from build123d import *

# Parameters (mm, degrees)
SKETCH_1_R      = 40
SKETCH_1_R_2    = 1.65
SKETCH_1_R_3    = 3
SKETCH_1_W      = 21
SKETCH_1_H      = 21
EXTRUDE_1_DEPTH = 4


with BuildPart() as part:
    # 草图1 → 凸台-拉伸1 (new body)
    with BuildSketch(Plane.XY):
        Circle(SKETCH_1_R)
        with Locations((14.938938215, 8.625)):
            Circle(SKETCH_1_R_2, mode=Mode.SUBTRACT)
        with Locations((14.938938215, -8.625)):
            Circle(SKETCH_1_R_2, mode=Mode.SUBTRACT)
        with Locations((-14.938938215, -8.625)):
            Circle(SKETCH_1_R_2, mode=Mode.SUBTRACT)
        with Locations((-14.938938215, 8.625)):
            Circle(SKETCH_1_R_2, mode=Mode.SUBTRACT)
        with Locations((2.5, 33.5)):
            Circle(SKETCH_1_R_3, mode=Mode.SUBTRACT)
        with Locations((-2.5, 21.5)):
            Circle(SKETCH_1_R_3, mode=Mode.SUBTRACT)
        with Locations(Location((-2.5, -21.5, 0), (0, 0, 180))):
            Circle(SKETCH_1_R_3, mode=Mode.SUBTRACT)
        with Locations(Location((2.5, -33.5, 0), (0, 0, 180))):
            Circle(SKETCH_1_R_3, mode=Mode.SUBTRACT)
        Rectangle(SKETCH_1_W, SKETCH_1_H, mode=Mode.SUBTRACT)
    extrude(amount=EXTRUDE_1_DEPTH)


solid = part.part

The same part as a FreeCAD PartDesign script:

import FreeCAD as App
import Part
import Sketcher
from FreeCAD import Vector

doc = App.newDocument("Part")
body = doc.addObject("PartDesign::Body", "Body")

sketch1 = body.newObject("Sketcher::SketchObject", "Sketch")
sketch1.AttachmentSupport = (doc.getObject("XY_Plane"), [""])
sketch1.MapMode = "FlatFace"
sketch1.addGeometry([
    Part.Circle(Vector(0, 0, 0), Vector(0, 0, 1), 40),
    Part.Circle(Vector(-2.5, -21.5, 0), Vector(0, 0, 1), 3),
    Part.Circle(Vector(-14.9, -8.6, 0), Vector(0, 0, 1), 1.6),
    Part.Circle(Vector(2.5, -33.5, 0), Vector(0, 0, 1), 3),
    Part.Circle(Vector(14.9, -8.6, 0), Vector(0, 0, 1), 1.6),
    Part.Circle(Vector(-14.9, 8.6, 0), Vector(0, 0, 1), 1.6),
    Part.Circle(Vector(-2.5, 21.5, 0), Vector(0, 0, 1), 3),
    Part.LineSegment(Vector(10.5, -10.5, 0), Vector(-10.5, -10.5, 0)),
    Part.LineSegment(Vector(-10.5, -10.5, 0), Vector(-10.5, 10.5, 0)),
    Part.LineSegment(Vector(-10.5, 10.5, 0), Vector(10.5, 10.5, 0)),
    Part.LineSegment(Vector(10.5, 10.5, 0), Vector(10.5, -10.5, 0)),
    Part.Circle(Vector(14.9, 8.6, 0), Vector(0, 0, 1), 1.6),
    Part.Circle(Vector(2.5, 33.5, 0), Vector(0, 0, 1), 3),
], False)
sketch1.addConstraint([
    Sketcher.Constraint("Coincident", 7, 2, 8, 1),
    Sketcher.Constraint("Coincident", 8, 2, 9, 1),
    Sketcher.Constraint("Coincident", 9, 2, 10, 1),
    Sketcher.Constraint("Coincident", 10, 2, 7, 1),
    Sketcher.Constraint("Horizontal", 7),
    Sketcher.Constraint("Vertical", 8),
    Sketcher.Constraint("Horizontal", 9),
    Sketcher.Constraint("Vertical", 10),
    Sketcher.Constraint("Coincident", 0, 3, -1, 1),
    Sketcher.Constraint("Equal", 1, 3),
    Sketcher.Constraint("Equal", 2, 4),
    Sketcher.Constraint("Equal", 4, 5),
    Sketcher.Constraint("Equal", 3, 6),
    Sketcher.Constraint("Equal", 5, 11),
    Sketcher.Constraint("Equal", 6, 12),
    Sketcher.Constraint("Symmetric", 4, 3, 5, 3, -1, 1),
    Sketcher.Constraint("Symmetric", 2, 3, 11, 3, -1, 1),
    Sketcher.Constraint("Symmetric", 7, 2, 9, 2, -1, 1),
    Sketcher.Constraint("Symmetric", 2, 3, 4, 3, -2),
    Sketcher.Constraint("Symmetric", 1, 3, 6, 3, -1),
    Sketcher.Constraint("Symmetric", 3, 3, 12, 3, -1),
    Sketcher.Constraint("Equal", 9, 8),
    Sketcher.Constraint("Diameter", 0, 80.0),
    Sketcher.Constraint("Diameter", 1, 6.0),
    Sketcher.Constraint("Diameter", 2, 3.3),
    Sketcher.Constraint("DistanceX", 7, 2, 7, 1, 21.0),
    Sketcher.Constraint("DistanceX", 1, 3, 3, 3, 5.0),
    Sketcher.Constraint("DistanceY", 3, 3, 1, 3, 12.0),
    Sketcher.Constraint("DistanceY", 1, 3, 6, 3, 43.0),
    Sketcher.Constraint("DistanceX", 7, 2, 1, 3, 8.0),
    Sketcher.Constraint("DistanceY", 2, 3, 5, 3, 17.25),
    Sketcher.Constraint("DistanceX", 2, 3, -1, 1, 14.938938),
])
pad1 = body.newObject("PartDesign::Pad", "Pad")
pad1.Profile = sketch1
pad1.Length = 4

doc.recompute()
